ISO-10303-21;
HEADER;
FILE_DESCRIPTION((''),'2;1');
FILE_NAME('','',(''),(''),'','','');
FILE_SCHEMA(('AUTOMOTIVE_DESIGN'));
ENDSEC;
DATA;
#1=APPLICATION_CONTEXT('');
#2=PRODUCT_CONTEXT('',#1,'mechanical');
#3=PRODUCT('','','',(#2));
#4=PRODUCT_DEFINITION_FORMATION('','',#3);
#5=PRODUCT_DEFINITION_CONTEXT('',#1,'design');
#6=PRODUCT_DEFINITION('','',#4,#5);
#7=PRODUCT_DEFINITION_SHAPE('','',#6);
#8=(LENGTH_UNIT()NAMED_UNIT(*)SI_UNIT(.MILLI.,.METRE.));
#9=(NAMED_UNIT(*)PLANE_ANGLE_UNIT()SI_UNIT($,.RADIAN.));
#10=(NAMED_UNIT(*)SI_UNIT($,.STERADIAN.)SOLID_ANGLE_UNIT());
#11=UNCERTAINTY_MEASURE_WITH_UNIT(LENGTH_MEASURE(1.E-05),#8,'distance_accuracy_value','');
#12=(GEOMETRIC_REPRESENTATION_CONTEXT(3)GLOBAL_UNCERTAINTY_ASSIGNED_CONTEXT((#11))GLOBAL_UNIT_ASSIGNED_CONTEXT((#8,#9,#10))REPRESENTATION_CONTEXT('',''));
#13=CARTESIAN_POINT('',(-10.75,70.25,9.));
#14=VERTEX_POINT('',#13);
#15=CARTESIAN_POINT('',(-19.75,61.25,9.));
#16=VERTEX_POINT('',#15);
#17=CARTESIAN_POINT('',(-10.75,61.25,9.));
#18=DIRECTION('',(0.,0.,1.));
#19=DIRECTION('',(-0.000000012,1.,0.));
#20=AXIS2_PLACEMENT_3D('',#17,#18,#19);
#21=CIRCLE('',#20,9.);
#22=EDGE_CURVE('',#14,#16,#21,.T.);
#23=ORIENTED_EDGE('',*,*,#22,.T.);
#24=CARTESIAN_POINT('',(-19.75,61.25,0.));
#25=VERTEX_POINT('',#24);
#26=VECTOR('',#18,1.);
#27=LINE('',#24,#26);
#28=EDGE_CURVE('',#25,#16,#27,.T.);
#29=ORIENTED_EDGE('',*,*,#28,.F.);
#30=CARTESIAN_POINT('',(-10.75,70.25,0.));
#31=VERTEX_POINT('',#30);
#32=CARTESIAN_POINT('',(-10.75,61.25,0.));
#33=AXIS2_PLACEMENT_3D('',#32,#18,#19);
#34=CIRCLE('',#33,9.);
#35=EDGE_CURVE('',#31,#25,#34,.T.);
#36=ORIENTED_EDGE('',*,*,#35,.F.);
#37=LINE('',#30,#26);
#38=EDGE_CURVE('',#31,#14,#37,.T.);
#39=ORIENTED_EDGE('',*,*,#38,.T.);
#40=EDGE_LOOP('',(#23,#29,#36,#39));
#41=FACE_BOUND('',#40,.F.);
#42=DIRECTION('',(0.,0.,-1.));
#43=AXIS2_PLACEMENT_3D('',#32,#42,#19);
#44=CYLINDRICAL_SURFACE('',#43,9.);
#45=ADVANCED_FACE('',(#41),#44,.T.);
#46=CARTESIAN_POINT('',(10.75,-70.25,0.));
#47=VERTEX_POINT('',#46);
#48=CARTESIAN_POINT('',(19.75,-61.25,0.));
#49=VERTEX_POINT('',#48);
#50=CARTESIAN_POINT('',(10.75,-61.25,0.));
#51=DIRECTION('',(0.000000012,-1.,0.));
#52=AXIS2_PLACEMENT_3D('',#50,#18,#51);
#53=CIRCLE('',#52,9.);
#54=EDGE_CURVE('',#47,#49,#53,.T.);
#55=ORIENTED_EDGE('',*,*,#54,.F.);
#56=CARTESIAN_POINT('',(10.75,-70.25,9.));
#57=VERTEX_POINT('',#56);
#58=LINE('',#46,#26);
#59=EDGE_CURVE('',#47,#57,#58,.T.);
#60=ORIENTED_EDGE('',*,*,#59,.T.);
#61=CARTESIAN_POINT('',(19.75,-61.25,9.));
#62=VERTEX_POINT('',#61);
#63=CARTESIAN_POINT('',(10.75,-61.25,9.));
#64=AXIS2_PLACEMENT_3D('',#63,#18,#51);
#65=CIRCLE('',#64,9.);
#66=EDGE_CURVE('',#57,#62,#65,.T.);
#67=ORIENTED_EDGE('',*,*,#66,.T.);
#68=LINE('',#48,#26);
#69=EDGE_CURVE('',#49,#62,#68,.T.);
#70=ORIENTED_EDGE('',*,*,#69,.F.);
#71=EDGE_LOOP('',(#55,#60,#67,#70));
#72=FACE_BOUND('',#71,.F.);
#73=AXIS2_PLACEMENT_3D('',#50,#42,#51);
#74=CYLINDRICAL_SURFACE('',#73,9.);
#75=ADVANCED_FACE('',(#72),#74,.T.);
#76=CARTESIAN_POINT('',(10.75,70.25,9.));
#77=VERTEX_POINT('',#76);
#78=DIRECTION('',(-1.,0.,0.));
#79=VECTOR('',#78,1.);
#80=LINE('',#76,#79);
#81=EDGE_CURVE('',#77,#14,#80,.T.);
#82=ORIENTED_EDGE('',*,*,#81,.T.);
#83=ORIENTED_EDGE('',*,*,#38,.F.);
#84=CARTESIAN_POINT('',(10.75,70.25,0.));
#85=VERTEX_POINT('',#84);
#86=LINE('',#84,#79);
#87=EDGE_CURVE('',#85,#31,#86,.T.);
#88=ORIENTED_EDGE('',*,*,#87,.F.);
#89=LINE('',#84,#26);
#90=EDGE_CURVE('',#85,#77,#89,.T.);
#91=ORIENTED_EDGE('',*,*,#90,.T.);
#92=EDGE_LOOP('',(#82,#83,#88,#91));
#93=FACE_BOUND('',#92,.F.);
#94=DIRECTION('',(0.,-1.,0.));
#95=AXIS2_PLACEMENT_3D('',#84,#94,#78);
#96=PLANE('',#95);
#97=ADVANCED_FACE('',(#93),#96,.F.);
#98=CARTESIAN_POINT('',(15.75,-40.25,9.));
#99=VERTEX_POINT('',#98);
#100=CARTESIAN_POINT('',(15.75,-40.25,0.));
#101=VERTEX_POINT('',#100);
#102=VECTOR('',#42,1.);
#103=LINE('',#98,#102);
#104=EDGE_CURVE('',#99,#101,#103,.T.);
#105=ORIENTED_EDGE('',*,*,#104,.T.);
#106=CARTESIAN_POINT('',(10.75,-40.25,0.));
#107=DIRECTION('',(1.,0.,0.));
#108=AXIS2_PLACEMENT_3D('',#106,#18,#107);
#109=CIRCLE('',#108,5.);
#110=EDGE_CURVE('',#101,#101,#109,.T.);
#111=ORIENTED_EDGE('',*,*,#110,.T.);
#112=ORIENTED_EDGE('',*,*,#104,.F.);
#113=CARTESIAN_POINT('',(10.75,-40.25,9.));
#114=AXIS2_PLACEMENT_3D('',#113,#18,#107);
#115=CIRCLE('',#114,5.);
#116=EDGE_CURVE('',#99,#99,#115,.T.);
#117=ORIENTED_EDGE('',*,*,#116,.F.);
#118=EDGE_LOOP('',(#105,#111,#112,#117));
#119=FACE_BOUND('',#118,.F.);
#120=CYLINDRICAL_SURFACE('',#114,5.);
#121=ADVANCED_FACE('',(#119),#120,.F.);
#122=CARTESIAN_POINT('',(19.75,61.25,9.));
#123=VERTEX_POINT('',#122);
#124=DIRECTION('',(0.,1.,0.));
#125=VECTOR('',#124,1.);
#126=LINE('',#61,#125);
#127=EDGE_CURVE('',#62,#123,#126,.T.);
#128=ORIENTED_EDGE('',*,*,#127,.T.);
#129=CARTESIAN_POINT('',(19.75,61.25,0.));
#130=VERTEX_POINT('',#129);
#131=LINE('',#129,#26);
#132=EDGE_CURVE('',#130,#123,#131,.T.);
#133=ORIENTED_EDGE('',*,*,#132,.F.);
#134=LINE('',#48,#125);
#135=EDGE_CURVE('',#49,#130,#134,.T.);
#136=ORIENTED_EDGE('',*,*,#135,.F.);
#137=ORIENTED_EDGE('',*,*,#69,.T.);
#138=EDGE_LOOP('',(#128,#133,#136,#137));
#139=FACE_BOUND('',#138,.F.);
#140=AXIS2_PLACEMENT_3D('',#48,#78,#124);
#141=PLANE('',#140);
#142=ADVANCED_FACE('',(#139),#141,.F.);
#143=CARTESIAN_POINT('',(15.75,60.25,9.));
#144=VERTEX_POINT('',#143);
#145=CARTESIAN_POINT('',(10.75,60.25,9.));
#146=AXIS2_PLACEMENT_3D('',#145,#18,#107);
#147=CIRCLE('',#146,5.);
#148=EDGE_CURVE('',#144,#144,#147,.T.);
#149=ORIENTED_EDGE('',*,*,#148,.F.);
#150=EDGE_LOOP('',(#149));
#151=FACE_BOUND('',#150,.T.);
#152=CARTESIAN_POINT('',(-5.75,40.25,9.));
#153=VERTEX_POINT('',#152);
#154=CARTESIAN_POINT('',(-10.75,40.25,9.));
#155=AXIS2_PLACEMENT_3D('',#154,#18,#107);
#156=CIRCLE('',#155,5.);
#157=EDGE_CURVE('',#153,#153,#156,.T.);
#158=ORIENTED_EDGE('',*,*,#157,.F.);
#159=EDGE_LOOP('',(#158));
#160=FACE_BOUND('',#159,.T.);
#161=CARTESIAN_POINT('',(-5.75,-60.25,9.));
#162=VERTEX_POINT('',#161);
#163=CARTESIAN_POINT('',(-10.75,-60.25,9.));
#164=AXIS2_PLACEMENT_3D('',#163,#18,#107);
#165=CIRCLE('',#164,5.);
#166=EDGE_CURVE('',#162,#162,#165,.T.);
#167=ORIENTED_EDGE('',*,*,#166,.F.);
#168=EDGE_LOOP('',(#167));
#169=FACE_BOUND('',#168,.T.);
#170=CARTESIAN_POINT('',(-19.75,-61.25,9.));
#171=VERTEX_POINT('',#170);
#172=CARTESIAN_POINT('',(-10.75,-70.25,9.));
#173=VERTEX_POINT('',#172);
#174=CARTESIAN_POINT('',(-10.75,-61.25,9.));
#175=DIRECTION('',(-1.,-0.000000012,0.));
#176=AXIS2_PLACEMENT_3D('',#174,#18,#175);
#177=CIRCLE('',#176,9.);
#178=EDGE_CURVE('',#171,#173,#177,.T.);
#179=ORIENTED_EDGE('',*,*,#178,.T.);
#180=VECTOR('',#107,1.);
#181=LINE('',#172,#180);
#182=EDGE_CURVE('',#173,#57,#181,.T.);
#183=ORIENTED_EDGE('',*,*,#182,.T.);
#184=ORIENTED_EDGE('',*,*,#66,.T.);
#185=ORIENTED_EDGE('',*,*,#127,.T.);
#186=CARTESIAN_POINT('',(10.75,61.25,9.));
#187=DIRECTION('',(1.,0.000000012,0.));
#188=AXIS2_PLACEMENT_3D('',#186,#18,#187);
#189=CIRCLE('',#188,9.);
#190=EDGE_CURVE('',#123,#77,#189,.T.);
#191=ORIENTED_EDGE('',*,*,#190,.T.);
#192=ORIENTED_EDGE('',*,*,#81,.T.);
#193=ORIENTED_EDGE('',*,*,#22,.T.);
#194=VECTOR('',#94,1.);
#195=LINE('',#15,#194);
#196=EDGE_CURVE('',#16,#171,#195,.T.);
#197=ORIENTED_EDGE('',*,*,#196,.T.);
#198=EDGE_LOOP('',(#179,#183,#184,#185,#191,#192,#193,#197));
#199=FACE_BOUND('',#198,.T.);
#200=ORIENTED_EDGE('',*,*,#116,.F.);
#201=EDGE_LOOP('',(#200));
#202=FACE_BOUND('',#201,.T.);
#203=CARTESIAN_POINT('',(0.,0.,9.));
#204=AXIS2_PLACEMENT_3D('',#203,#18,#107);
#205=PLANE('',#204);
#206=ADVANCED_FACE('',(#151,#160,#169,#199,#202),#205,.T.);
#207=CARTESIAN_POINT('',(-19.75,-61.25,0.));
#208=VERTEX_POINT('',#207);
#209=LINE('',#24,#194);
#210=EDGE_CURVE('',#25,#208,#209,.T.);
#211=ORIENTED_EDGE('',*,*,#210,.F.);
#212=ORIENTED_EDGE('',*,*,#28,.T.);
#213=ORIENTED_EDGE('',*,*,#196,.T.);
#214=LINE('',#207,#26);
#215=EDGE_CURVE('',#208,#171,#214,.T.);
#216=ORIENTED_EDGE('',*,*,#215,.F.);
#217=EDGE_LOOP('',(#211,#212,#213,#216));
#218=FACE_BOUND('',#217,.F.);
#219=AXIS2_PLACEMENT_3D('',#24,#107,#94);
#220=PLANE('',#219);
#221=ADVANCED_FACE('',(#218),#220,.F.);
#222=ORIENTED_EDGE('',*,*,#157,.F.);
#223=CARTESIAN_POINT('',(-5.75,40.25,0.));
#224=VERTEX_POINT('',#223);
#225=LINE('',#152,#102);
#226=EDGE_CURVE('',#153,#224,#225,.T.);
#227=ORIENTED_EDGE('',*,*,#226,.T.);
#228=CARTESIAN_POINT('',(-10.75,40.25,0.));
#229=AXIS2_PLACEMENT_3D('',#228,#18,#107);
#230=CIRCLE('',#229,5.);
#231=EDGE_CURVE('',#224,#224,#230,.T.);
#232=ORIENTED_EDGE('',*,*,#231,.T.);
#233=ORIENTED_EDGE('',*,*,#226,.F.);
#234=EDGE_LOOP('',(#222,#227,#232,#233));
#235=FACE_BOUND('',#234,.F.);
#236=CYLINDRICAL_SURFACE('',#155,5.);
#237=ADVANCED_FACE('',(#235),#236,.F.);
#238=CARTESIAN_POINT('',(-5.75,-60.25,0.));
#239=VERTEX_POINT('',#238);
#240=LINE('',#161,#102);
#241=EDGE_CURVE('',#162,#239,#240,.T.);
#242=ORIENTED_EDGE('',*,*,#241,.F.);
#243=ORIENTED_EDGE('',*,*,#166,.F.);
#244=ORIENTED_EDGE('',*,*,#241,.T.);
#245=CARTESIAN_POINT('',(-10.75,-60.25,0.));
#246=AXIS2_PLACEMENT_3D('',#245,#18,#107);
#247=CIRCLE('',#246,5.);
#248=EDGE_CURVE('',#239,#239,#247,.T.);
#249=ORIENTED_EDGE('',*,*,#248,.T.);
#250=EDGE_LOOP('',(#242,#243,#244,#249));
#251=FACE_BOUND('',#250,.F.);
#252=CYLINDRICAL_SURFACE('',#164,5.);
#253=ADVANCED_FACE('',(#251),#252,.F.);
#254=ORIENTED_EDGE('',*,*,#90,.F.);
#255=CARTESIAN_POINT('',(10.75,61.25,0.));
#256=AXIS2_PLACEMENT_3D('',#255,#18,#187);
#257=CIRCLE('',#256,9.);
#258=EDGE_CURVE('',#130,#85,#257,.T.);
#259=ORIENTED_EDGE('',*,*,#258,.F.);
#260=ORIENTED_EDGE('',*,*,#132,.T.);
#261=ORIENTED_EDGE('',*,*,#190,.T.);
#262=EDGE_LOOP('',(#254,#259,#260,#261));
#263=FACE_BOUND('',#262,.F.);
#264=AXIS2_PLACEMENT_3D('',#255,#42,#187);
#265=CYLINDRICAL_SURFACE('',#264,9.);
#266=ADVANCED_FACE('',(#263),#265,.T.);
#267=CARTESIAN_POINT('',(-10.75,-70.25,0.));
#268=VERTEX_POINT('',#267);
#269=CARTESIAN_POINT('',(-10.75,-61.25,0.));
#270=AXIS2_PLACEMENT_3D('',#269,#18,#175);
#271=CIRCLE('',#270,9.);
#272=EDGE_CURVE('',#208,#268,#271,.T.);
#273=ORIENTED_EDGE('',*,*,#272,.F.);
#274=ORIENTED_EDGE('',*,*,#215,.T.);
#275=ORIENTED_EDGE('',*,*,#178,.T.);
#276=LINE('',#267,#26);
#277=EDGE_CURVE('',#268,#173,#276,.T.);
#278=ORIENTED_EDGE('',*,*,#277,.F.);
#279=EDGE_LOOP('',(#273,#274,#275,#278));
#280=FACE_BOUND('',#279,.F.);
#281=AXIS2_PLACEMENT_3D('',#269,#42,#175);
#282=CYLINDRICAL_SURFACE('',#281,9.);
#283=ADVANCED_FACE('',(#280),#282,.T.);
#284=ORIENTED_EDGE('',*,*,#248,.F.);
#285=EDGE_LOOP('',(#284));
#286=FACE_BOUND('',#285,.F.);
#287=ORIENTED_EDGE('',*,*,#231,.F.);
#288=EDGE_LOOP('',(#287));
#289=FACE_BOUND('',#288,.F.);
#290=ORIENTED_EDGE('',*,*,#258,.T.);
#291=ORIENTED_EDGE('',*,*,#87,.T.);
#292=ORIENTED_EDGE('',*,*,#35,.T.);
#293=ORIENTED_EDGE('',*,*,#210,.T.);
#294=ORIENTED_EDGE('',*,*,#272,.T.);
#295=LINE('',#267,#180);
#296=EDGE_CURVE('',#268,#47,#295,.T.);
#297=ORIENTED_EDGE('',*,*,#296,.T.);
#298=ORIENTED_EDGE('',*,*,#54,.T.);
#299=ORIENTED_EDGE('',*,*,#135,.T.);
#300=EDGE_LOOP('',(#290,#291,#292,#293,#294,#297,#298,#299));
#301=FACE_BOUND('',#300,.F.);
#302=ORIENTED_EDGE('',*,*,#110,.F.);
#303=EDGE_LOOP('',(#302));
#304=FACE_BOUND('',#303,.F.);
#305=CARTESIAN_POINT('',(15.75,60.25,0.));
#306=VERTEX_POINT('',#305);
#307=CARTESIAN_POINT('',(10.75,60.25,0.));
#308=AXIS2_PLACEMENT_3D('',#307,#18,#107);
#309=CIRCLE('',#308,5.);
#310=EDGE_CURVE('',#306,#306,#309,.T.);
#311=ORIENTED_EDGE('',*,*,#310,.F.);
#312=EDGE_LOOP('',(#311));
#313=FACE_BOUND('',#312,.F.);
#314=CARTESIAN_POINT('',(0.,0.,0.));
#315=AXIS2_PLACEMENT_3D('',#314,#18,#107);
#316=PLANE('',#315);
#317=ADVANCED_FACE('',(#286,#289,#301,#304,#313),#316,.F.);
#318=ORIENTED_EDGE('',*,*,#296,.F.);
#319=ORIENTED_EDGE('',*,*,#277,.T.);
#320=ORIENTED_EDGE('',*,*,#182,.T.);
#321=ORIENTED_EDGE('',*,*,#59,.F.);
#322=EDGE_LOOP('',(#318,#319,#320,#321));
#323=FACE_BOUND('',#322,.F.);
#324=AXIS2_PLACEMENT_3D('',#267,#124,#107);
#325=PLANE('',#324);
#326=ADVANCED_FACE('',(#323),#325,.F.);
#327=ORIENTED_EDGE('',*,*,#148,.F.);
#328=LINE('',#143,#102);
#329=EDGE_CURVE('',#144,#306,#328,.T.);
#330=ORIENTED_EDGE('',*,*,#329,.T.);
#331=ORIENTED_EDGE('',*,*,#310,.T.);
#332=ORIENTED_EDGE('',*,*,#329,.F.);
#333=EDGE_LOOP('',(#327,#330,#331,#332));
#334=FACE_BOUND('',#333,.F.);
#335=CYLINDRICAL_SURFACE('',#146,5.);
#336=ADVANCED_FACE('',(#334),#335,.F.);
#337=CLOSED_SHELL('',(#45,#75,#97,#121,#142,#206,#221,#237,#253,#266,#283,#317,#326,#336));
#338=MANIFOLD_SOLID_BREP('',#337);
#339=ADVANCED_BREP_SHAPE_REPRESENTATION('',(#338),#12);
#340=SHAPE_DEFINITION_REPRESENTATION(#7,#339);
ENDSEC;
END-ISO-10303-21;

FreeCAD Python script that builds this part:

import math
import FreeCAD as App
import Part
import Sketcher
from FreeCAD import Vector

doc = App.newDocument("Part")
body = doc.addObject("PartDesign::Body", "Body")

# Sketch on XY plane
sketch1 = doc.addObject("Sketcher::SketchObject", "Sketch")
body.addObject(sketch1)
sketch1.AttachmentSupport = (doc.XY_Plane, [""])
sketch1.MapMode = "FlatFace"
sketch1.addGeometry(Part.LineSegment(Vector(10.75, 70.25, 0), Vector(-10.75, 70.25, 0)), False)
sketch1.addGeometry(Part.ArcOfCircle(Part.Circle(Vector(-10.75, 61.25, 0), Vector(0, 0, 1), 9), math.radians(90.000001), math.radians(179.999999)), False)
sketch1.addGeometry(Part.LineSegment(Vector(-19.75, 61.25, 0), Vector(-19.75, -61.25, 0)), False)
sketch1.addGeometry(Part.ArcOfCircle(Part.Circle(Vector(-10.75, -61.25, 0), Vector(0, 0, 1), 9), math.radians(-179.999999), math.radians(-90.000001)), False)
sketch1.addGeometry(Part.LineSegment(Vector(-10.75, -70.25, 0), Vector(10.75, -70.25, 0)), False)
sketch1.addGeometry(Part.ArcOfCircle(Part.Circle(Vector(10.75, -61.25, 0), Vector(0, 0, 1), 9), math.radians(-89.999999), math.radians(-0.000001)), False)
sketch1.addGeometry(Part.LineSegment(Vector(19.75, -61.25, 0), Vector(19.75, 61.25, 0)), False)
sketch1.addGeometry(Part.ArcOfCircle(Part.Circle(Vector(10.75, 61.25, 0), Vector(0, 0, 1), 9), math.radians(0.000001), math.radians(89.999999)), False)
sketch1.addConstraint(Sketcher.Constraint("Tangent", 0, 2, 1, 1))
sketch1.addConstraint(Sketcher.Constraint("Tangent", 1, 2, 2, 1))
sketch1.addConstraint(Sketcher.Constraint("Tangent", 2, 2, 3, 1))
sketch1.addConstraint(Sketcher.Constraint("Tangent", 3, 2, 4, 1))
sketch1.addConstraint(Sketcher.Constraint("Tangent", 4, 2, 5, 1))
sketch1.addConstraint(Sketcher.Constraint("Tangent", 5, 2, 6, 1))
sketch1.addConstraint(Sketcher.Constraint("Tangent", 6, 2, 7, 1))
sketch1.addConstraint(Sketcher.Constraint("Tangent", 7, 2, 0, 1))
sketch1.addConstraint(Sketcher.Constraint("Horizontal", 0))
sketch1.addConstraint(Sketcher.Constraint("Vertical", 2))
sketch1.addConstraint(Sketcher.Constraint("Horizontal", 4))
sketch1.addConstraint(Sketcher.Constraint("Vertical", 6))
sketch1.addConstraint(Sketcher.Constraint("Equal", 1, 3))
sketch1.addConstraint(Sketcher.Constraint("Equal", 3, 5))
sketch1.addConstraint(Sketcher.Constraint("Equal", 5, 7))
sketch1.addConstraint(Sketcher.Constraint("Symmetric", 1, 3, 5, 3, -1, 1))
sketch1.addConstraint(Sketcher.Constraint("Radius", 1, 9.0))
sketch1.addConstraint(Sketcher.Constraint("DistanceX", 0, 2, 0, 1, 21.5))
sketch1.addConstraint(Sketcher.Constraint("DistanceY", 2, 2, 2, 1, 122.5))
pad1 = doc.addObject("PartDesign::Pad", "Pad")
body.addObject(pad1)
pad1.Profile = sketch1
pad1.Length = 9

# Sketch on XY plane
sketch2 = doc.addObject("Sketcher::SketchObject", "Sketch001")
body.addObject(sketch2)
sketch2.AttachmentSupport = (doc.XY_Plane, [""])
sketch2.MapMode = "FlatFace"
sketch2.AttachmentOffset = App.Placement(Vector(0, 0, 9), App.Rotation())
sketch2.addGeometry(Part.Circle(Vector(10.75, 60.25, 0), Vector(0, 0, 1), 5), False)
sketch2.addGeometry(Part.Circle(Vector(-10.75, 40.25, 0), Vector(0, 0, 1), 5), False)
sketch2.addGeometry(Part.Circle(Vector(10.75, -40.25, 0), Vector(0, 0, 1), 5), False)
sketch2.addGeometry(Part.Circle(Vector(-10.75, -60.25, 0), Vector(0, 0, 1), 5), False)
sketch2.addConstraint(Sketcher.Constraint("Equal", 0, 1))
sketch2.addConstraint(Sketcher.Constraint("Equal", 1, 2))
sketch2.addConstraint(Sketcher.Constraint("Equal", 2, 3))
sketch2.addConstraint(Sketcher.Constraint("Symmetric", 1, 3, 2, 3, -1, 1))
sketch2.addConstraint(Sketcher.Constraint("Symmetric", 0, 3, 3, 3, -1, 1))
sketch2.addConstraint(Sketcher.Constraint("Vertical", 0, 3, 2, 3))
sketch2.addConstraint(Sketcher.Constraint("Diameter", 0, 10.0))
sketch2.addConstraint(Sketcher.Constraint("DistanceY", 1, 3, 0, 3, 20.0))
sketch2.addConstraint(Sketcher.Constraint("DistanceX", 1, 3, 0, 3, 21.5))
sketch2.addConstraint(Sketcher.Constraint("DistanceY", 2, 3, 1, 3, 80.5))
pocket1 = doc.addObject("PartDesign::Pocket", "Pocket")
body.addObject(pocket1)
pocket1.Profile = sketch2
pocket1.Type = "ThroughAll"

doc.recompute()
